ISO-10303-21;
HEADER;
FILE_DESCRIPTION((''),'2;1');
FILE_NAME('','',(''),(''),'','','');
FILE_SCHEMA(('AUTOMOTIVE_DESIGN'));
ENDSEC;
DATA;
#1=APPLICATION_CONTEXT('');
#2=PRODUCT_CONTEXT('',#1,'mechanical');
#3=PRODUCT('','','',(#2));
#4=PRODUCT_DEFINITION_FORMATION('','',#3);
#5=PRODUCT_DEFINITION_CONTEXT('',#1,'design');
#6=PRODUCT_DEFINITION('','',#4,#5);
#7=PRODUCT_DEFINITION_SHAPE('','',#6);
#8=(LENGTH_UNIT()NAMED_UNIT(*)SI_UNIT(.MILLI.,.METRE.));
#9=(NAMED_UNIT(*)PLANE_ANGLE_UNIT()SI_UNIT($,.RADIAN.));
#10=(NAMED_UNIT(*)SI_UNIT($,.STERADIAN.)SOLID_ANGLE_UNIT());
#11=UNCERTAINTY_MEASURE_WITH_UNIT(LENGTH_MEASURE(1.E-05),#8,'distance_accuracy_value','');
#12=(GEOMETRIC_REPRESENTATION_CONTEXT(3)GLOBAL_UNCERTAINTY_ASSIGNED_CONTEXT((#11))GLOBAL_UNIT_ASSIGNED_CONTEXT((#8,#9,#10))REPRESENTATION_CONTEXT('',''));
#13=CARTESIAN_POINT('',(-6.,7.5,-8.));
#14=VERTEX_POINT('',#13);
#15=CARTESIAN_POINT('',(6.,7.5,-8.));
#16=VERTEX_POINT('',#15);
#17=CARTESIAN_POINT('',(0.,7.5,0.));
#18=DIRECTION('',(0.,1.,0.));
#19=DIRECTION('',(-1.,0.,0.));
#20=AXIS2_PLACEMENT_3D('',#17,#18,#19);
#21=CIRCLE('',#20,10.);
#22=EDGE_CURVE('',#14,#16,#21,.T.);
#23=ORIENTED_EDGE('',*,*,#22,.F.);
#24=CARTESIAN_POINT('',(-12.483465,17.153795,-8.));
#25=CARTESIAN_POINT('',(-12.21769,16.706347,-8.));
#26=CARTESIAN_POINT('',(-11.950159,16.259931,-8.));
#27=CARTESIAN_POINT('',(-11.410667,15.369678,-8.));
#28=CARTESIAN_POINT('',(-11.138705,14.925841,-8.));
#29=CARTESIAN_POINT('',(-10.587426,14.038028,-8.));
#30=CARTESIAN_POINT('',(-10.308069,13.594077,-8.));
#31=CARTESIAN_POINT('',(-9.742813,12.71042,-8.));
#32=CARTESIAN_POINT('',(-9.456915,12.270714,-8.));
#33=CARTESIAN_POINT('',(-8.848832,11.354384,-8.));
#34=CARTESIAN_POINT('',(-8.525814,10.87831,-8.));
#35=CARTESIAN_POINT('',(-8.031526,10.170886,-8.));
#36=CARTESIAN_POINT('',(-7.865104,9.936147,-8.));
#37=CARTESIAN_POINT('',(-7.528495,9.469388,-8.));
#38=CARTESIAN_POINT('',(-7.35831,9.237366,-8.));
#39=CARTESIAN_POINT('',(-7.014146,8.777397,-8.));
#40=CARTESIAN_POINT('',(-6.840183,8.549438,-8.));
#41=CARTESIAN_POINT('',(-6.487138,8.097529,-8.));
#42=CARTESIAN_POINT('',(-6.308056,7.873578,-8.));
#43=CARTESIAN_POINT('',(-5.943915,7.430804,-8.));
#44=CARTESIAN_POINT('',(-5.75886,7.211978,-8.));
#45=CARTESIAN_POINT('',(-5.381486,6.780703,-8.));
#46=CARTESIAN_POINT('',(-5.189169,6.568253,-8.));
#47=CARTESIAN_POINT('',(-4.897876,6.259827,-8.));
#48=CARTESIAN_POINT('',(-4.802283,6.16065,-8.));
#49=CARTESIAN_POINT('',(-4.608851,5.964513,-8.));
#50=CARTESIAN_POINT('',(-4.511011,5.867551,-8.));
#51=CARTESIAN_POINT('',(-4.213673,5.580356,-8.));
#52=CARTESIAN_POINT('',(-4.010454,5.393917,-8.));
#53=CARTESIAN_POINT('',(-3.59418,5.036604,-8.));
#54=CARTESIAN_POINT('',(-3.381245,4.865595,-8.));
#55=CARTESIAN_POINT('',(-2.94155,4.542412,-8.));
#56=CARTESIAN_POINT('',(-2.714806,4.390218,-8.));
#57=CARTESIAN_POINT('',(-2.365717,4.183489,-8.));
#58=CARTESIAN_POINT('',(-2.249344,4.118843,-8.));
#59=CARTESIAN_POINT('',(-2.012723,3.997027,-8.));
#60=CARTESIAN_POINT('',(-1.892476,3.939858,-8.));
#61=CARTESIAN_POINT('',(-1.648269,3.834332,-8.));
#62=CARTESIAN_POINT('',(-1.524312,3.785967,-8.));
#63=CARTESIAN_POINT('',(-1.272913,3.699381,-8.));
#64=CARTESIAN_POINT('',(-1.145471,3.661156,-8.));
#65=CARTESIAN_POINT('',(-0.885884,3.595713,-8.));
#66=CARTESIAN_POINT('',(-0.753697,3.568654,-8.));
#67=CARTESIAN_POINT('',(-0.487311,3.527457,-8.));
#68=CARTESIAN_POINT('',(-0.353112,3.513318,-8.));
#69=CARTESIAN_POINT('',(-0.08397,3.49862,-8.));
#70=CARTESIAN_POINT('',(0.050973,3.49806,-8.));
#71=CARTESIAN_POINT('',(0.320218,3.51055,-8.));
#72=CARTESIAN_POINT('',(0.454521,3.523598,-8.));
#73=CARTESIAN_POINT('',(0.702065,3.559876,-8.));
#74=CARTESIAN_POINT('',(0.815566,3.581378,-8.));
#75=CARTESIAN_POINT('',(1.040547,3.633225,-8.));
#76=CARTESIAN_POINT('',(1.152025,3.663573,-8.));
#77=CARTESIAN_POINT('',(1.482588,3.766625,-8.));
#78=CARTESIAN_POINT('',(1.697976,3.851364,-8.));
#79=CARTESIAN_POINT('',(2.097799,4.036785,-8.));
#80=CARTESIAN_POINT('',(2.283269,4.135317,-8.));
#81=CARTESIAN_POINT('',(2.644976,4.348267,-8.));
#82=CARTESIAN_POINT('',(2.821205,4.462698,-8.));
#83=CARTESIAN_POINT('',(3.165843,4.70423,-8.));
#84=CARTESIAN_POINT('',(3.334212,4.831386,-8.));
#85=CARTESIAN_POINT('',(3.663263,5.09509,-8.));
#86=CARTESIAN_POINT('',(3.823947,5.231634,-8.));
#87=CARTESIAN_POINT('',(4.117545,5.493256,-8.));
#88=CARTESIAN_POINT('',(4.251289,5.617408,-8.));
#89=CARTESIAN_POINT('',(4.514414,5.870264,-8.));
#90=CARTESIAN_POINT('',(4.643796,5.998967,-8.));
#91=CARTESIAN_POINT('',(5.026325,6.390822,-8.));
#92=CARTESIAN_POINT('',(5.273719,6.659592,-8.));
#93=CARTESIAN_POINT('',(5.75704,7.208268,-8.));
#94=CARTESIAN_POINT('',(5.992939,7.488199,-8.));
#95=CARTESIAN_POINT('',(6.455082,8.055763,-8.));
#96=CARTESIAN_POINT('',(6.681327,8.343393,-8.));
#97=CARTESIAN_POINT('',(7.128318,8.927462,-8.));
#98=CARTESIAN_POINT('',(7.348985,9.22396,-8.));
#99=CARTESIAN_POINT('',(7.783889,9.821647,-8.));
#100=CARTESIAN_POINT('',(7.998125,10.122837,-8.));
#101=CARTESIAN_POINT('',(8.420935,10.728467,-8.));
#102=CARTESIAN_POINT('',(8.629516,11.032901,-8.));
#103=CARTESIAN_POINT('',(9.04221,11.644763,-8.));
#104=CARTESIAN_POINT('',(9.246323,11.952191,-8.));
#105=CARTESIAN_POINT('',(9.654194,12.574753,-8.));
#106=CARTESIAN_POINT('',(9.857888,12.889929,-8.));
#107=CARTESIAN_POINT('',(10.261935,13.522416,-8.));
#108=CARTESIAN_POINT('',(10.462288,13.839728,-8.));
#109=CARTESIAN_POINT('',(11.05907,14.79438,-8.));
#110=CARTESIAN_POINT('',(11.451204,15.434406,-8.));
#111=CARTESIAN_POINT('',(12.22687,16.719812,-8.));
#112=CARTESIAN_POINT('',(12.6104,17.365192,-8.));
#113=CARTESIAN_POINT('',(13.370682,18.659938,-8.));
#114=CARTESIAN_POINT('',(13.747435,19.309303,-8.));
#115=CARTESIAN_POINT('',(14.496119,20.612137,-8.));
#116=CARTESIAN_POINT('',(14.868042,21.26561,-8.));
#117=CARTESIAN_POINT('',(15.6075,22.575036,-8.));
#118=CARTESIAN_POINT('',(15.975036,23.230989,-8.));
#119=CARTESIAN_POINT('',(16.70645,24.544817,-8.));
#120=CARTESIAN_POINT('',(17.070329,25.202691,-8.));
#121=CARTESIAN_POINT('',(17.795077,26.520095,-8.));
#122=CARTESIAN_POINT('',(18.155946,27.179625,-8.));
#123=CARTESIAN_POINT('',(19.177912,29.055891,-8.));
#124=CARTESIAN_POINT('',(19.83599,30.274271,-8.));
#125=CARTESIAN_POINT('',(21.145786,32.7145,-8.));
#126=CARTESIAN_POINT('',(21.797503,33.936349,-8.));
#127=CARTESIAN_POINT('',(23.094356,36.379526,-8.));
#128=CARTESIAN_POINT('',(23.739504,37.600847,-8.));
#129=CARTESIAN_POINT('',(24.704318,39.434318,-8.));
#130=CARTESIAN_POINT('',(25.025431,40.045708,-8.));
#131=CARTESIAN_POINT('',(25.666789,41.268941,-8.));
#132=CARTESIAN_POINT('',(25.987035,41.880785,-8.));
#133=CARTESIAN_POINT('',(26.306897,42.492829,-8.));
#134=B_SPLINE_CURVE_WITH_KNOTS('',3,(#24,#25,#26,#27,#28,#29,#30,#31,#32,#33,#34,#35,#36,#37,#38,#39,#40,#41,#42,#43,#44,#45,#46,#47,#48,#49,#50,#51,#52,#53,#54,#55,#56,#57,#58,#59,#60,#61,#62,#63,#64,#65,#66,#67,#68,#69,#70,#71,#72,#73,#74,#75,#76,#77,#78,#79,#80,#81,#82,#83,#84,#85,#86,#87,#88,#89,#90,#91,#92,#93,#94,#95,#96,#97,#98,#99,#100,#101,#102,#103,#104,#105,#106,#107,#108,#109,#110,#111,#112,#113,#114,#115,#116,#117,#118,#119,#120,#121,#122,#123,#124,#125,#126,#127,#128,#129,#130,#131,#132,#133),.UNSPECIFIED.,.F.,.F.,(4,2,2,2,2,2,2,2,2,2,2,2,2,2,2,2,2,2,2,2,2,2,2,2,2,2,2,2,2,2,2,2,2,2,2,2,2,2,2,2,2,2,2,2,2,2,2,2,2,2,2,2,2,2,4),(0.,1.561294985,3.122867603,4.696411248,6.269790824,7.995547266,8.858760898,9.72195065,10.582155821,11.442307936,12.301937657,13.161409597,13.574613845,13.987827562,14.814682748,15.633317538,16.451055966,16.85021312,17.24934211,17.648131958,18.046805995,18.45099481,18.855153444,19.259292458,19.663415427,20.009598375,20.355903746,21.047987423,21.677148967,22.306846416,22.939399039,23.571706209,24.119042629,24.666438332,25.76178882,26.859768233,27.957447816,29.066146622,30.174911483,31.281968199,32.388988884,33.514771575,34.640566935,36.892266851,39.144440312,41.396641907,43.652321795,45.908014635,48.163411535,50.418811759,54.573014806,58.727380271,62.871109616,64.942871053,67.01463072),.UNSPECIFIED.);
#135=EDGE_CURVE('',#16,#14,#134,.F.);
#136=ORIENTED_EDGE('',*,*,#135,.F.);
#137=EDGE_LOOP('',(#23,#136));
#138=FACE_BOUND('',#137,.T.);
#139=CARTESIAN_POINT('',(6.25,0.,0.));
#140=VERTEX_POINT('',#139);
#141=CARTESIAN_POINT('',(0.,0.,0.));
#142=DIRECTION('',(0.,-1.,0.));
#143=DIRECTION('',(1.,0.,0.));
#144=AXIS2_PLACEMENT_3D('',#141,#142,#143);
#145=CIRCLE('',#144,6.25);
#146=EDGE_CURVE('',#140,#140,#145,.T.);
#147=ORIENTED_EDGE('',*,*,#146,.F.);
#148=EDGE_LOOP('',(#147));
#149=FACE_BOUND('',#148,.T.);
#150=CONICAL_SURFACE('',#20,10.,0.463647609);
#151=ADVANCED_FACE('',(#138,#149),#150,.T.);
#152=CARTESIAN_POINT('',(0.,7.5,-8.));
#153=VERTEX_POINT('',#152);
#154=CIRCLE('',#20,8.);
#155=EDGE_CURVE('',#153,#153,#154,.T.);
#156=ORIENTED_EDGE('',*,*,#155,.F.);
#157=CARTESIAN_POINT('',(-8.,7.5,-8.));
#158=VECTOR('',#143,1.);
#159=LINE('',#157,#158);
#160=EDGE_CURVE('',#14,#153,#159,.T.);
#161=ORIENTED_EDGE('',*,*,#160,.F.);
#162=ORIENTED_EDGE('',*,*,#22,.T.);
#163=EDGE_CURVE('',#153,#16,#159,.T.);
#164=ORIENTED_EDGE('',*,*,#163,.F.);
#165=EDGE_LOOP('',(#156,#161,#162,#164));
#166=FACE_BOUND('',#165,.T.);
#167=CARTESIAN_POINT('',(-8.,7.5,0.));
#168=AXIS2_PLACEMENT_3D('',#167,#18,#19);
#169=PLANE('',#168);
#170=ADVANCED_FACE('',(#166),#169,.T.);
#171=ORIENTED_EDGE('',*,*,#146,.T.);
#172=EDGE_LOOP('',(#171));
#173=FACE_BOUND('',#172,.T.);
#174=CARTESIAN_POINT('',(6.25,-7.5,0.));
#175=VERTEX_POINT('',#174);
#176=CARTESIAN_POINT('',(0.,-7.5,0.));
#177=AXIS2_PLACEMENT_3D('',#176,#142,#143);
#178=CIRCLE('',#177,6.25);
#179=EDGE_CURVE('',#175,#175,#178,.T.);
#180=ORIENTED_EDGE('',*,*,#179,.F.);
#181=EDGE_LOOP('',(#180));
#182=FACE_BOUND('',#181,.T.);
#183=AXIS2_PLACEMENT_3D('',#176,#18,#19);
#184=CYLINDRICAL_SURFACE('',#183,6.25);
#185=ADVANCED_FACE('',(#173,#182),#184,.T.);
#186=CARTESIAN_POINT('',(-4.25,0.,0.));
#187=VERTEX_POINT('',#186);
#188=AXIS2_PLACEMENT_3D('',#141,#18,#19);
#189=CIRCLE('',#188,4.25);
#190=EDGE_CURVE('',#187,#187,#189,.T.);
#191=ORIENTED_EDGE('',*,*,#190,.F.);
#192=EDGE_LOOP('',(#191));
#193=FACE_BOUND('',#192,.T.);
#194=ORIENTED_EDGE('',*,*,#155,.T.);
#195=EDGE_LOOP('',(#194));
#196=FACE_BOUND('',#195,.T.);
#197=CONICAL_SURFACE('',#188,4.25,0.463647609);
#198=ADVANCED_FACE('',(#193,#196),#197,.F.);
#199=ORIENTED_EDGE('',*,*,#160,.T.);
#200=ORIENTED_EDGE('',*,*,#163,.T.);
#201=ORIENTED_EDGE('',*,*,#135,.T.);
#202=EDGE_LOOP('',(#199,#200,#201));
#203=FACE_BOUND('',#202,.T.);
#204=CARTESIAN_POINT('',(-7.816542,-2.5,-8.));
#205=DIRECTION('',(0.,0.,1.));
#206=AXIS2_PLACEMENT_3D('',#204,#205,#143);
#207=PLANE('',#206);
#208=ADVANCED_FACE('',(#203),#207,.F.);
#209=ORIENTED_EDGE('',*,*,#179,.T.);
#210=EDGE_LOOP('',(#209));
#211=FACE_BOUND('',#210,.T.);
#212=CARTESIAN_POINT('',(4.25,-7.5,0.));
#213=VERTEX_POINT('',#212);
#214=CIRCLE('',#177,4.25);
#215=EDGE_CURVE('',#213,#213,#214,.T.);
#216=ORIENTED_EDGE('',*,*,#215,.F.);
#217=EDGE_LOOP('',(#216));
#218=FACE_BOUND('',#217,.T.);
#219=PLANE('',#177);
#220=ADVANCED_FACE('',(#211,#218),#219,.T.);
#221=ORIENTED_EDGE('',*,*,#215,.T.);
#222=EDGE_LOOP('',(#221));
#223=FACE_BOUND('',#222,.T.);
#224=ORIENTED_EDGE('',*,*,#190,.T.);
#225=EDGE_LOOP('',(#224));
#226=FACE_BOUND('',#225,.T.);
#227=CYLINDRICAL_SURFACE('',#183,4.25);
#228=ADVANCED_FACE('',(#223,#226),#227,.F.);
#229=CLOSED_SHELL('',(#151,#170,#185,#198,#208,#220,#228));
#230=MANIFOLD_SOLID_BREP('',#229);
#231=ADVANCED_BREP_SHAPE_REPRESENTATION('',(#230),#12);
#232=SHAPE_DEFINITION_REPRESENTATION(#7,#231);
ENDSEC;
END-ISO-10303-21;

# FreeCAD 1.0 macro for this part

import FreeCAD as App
import Part
import Sketcher
from FreeCAD import Vector


def add_polygon(sketch, points):
    """Adds a closed chain of lines whose ends are joined by coincident constraints."""
    first, n = sketch.GeometryCount, len(points)
    for a, b in zip(points, points[1:] + points[:1]):
        sketch.addGeometry(Part.LineSegment(App.Vector(*a, 0), App.Vector(*b, 0)), False)
    for i in range(n):
        sketch.addConstraint(Sketcher.Constraint("Coincident", first + i, 2, first + (i + 1) % n, 1))

doc = App.newDocument("Part")
body = doc.addObject("PartDesign::Body", "Body")

# Sketch on XY plane
sketch1 = body.newObject("Sketcher::SketchObject", "Sketch")
sketch1.AttachmentSupport = (doc.getObject("XY_Plane"), [""])
sketch1.MapMode = "FlatFace"
add_polygon(sketch1, [(-4.2, 0), (-8, 7.5), (-10, 7.5), (-6.2, 0)])  # lines 0-3
sketch1.addConstraint([
    Sketcher.Constraint("Horizontal", 1),
    Sketcher.Constraint("Horizontal", 3),
    Sketcher.Constraint("PointOnObject", 2, 2, -1),
    Sketcher.Constraint("Parallel", 0, 2),
    Sketcher.Constraint("DistanceX", 1, 2, 1, 1, 2.0),
    Sketcher.Constraint("DistanceX", 0, 2, -1, 1, 8.0),
    Sketcher.Constraint("DistanceY", -1, 1, 0, 2, 7.5),
    Sketcher.Constraint("DistanceX", 2, 2, -1, 1, 6.25),
])
revolution = body.newObject("PartDesign::Revolution", "Revolution")
revolution.Profile = sketch1
revolution.ReferenceAxis = (sketch1, ["V_Axis"])
revolution.Angle = 360

# Sketch on XZ plane
sketch2 = body.newObject("Sketcher::SketchObject", "Sketch001")
sketch2.AttachmentSupport = (doc.getObject("XZ_Plane"), [""])
sketch2.MapMode = "FlatFace"
sketch2.addGeometry([
    Part.Circle(Vector(0, 0, 0), Vector(0, 0, 1), 6.2),
    Part.Circle(Vector(0, 0, 0), Vector(0, 0, 1), 4.2),
], False)
sketch2.addConstraint([
    Sketcher.Constraint("Coincident", 0, 3, -1, 1),
    Sketcher.Constraint("Coincident", 1, 3, -1, 1),
    Sketcher.Constraint("Diameter", 0, 12.5),
    Sketcher.Constraint("Diameter", 1, 8.5),
])
pad1 = body.newObject("PartDesign::Pad", "Pad")
pad1.Profile = sketch2
pad1.Length = 7.5

# Sketch on XZ plane
sketch3 = body.newObject("Sketcher::SketchObject", "Sketch002")
sketch3.AttachmentSupport = (doc.getObject("XZ_Plane"), [""])
sketch3.MapMode = "FlatFace"
sketch3.AttachmentOffset = App.Placement(Vector(0, 0, -7.5), App.Rotation())
add_polygon(sketch3, [(-8, -8), (8, -8), (0, -11)])  # lines 0-2
sketch3.addConstraint([
    Sketcher.Constraint("Horizontal", 0),
    Sketcher.Constraint("PointOnObject", 1, 2, -2),
    Sketcher.Constraint("Equal", 1, 2),
    Sketcher.Constraint("DistanceY", 0, 2, -1, 1, 8.0),
    Sketcher.Constraint("Distance", 1, 8.54754),
    Sketcher.Constraint("DistanceX", 0, 1, 0, 2, 15.633084),
])
pocket1 = body.newObject("PartDesign::Pocket", "Pocket")
pocket1.Profile = sketch3
pocket1.Length = 10
pocket1.Reversed = True

doc.recompute()
